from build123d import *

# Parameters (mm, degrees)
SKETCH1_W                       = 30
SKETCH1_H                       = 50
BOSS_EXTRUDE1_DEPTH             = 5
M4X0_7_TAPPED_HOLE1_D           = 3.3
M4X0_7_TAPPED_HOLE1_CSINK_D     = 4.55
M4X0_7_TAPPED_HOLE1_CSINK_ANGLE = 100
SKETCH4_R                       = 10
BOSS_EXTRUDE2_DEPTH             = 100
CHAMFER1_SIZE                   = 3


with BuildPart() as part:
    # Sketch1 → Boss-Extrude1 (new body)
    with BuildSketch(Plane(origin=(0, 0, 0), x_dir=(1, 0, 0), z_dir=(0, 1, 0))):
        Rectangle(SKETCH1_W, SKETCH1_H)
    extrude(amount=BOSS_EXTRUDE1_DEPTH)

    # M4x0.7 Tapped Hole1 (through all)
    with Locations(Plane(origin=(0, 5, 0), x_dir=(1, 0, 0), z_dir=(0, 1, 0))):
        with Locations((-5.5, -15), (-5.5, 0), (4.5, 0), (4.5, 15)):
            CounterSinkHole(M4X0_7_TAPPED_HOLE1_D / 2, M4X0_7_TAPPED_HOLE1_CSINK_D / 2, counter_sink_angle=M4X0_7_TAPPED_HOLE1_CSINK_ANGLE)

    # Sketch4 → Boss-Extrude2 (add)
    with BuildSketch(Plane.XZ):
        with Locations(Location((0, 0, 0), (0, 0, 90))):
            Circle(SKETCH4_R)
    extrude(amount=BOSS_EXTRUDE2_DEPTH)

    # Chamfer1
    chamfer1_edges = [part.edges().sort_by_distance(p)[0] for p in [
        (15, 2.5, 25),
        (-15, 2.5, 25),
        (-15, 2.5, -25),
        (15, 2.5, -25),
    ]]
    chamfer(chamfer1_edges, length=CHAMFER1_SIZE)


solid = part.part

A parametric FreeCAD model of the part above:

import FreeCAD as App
import Part
import Sketcher
from FreeCAD import Vector


def edges_at(feature, points):
    """Names of the edges that pass closest to the given points."""
    edges = feature.Shape.Edges
    near = lambda p: min(range(len(edges)), key=lambda i: edges[i].distToShape(Part.Vertex(*p))[0])
    return sorted({f"Edge{near(p) + 1}" for p in points})


def add_polygon(sketch, points):
    """Adds a closed chain of lines whose ends are joined by coincident constraints."""
    first, n = sketch.GeometryCount, len(points)
    for a, b in zip(points, points[1:] + points[:1]):
        sketch.addGeometry(Part.LineSegment(App.Vector(*a, 0), App.Vector(*b, 0)), False)
    for i in range(n):
        sketch.addConstraint(Sketcher.Constraint("Coincident", first + i, 2, first + (i + 1) % n, 1))

doc = App.newDocument("Part")
body = doc.addObject("PartDesign::Body", "Body")

# Sketch on XZ plane
sketch1 = body.newObject("Sketcher::SketchObject", "Sketch")
sketch1.AttachmentSupport = (doc.getObject("XZ_Plane"), [""])
sketch1.MapMode = "FlatFace"
add_polygon(sketch1, [(-15, -25), (-15, 25), (15, 25), (15, -25)])  # lines 0-3
sketch1.addConstraint(Sketcher.Constraint("Vertical", 0))
sketch1.addConstraint(Sketcher.Constraint("Horizontal", 1))
sketch1.addConstraint(Sketcher.Constraint("Vertical", 2))
sketch1.addConstraint(Sketcher.Constraint("Horizontal", 3))
sketch1.addConstraint(Sketcher.Constraint("Symmetric", 0, 2, 2, 2, -1, 1))
sketch1.addConstraint(Sketcher.Constraint("DistanceX", 1, 1, 1, 2, 30.0))
sketch1.addConstraint(Sketcher.Constraint("DistanceY", 0, 1, 0, 2, 50.0))
pad1 = body.newObject("PartDesign::Pad", "Pad")
pad1.Profile = sketch1
pad1.Length = 5
pad1.Reversed = True

# Sketch on XZ plane
sketch2 = body.newObject("Sketcher::SketchObject", "Sketch001")
sketch2.AttachmentSupport = (doc.getObject("XZ_Plane"), [""])
sketch2.MapMode = "FlatFace"
sketch2.AttachmentOffset = App.Placement(Vector(0, 0, -5), App.Rotation())
sketch2.addGeometry(Part.Circle(Vector(-5.5, 15, 0), Vector(0, 0, 1), 1.6), False)
sketch2.addGeometry(Part.Circle(Vector(-5.5, 0, 0), Vector(0, 0, 1), 1.6), False)
sketch2.addGeometry(Part.Circle(Vector(4.5, 0, 0), Vector(0, 0, 1), 1.6), False)
sketch2.addGeometry(Part.Circle(Vector(4.5, -15, 0), Vector(0, 0, 1), 1.6), False)
sketch2.addConstraint(Sketcher.Constraint("Equal", 0, 1))
sketch2.addConstraint(Sketcher.Constraint("Equal", 1, 2))
sketch2.addConstraint(Sketcher.Constraint("Equal", 2, 3))
sketch2.addConstraint(Sketcher.Constraint("PointOnObject", 1, 3, -1))
sketch2.addConstraint(Sketcher.Constraint("PointOnObject", 2, 3, -1))
sketch2.addConstraint(Sketcher.Constraint("Vertical", 0, 3, 1, 3))
sketch2.addConstraint(Sketcher.Constraint("Vertical", 2, 3, 3, 3))
sketch2.addConstraint(Sketcher.Constraint("Diameter", 0, 3.3))
sketch2.addConstraint(Sketcher.Constraint("DistanceY", -1, 1, 0, 3, 15.0))
sketch2.addConstraint(Sketcher.Constraint("DistanceY", 3, 3, -1, 1, 15.0))
sketch2.addConstraint(Sketcher.Constraint("DistanceX", 1, 3, 2, 3, 10.0))
sketch2.addConstraint(Sketcher.Constraint("DistanceX", 0, 3, -1, 1, 5.5))
doc.recompute()
hole = body.newObject("PartDesign::Hole", "Hole")
hole.Profile = sketch2
hole.ThreadType = "None"
hole.Diameter = 3.3
hole.DepthType = "ThroughAll"
hole.HoleCutType = "Countersink"
hole.HoleCutDiameter = 4.55
hole.HoleCutCountersinkAngle = 100
hole.Reversed = True

# Sketch on XZ plane
sketch3 = body.newObject("Sketcher::SketchObject", "Sketch002")
sketch3.AttachmentSupport = (doc.getObject("XZ_Plane"), [""])
sketch3.MapMode = "FlatFace"
sketch3.addGeometry(Part.Circle(Vector(0, 0, 0), Vector(0, 0, 1), 10), False)
sketch3.addConstraint(Sketcher.Constraint("Coincident", 0, 3, -1, 1))
sketch3.addConstraint(Sketcher.Constraint("Diameter", 0, 20.0))
pad2 = body.newObject("PartDesign::Pad", "Pad001")
pad2.Profile = sketch3
pad2.Length = 100
doc.recompute()

chamfer = body.newObject("PartDesign::Chamfer", "Chamfer")
chamfer.Base = (pad2, edges_at(pad2, [
    (15, 2.5, 25),
    (-15, 2.5, 25),
    (-15, 2.5, -25),
    (15, 2.5, -25),
]))
chamfer.Size = 3

doc.recompute()
